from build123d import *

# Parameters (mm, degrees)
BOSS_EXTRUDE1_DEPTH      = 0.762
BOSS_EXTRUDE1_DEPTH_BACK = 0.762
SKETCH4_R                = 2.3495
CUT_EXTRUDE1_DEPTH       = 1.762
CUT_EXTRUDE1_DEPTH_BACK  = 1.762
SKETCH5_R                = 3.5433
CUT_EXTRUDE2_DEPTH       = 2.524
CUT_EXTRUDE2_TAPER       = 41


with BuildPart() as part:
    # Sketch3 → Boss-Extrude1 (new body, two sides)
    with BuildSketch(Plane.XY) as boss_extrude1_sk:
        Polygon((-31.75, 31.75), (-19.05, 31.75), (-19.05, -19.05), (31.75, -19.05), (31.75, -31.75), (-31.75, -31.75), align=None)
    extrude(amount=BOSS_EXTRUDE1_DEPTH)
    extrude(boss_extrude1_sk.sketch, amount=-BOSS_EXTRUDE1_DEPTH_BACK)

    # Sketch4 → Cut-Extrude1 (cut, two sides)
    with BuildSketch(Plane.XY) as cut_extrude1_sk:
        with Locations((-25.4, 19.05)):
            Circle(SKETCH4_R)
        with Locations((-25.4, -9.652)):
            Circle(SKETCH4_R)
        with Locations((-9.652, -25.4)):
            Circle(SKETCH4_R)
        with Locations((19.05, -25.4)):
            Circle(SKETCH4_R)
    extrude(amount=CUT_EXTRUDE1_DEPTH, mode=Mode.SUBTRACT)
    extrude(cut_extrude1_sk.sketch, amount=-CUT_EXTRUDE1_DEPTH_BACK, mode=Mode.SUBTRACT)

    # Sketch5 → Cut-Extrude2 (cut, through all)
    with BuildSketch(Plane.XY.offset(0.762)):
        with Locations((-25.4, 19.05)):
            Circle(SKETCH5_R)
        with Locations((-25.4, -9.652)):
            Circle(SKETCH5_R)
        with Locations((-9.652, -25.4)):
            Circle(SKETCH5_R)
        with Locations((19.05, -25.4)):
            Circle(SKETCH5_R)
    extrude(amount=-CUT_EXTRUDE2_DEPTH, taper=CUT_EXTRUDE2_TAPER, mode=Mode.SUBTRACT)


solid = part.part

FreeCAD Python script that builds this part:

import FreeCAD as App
import Part
import Sketcher
from FreeCAD import Vector
Q = App.Units.Quantity

doc = App.newDocument("Part")
body = doc.addObject("PartDesign::Body", "Body")

sketch1 = body.newObject("Sketcher::SketchObject", "Sketch")
sketch1.AttachmentSupport = (doc.getObject("XY_Plane"), [""])
sketch1.MapMode = "FlatFace"
sketch1.addGeometry([
    Part.LineSegment(Vector(-19, 32, 0), Vector(-32, 32, 0)),
    Part.LineSegment(Vector(-32, 32, 0), Vector(-32, -32, 0)),
    Part.LineSegment(Vector(-32, -32, 0), Vector(32, -32, 0)),
    Part.LineSegment(Vector(32, -32, 0), Vector(32, -19, 0)),
    Part.LineSegment(Vector(32, -19, 0), Vector(-19, -19, 0)),
    Part.LineSegment(Vector(-19, -19, 0), Vector(-19, 32, 0)),
], False)
sketch1.addConstraint([
    Sketcher.Constraint("Coincident", 0, 2, 1, 1),
    Sketcher.Constraint("Coincident", 1, 2, 2, 1),
    Sketcher.Constraint("Coincident", 2, 2, 3, 1),
    Sketcher.Constraint("Coincident", 3, 2, 4, 1),
    Sketcher.Constraint("Coincident", 4, 2, 5, 1),
    Sketcher.Constraint("Coincident", 5, 2, 0, 1),
    Sketcher.Constraint("Horizontal", 0),
    Sketcher.Constraint("Vertical", 1),
    Sketcher.Constraint("Horizontal", 2),
    Sketcher.Constraint("Vertical", 3),
    Sketcher.Constraint("Horizontal", 4),
    Sketcher.Constraint("Vertical", 5),
    Sketcher.Constraint("Symmetric", 0, 2, 2, 2, -1, 1),
    Sketcher.Constraint("Equal", 2, 1),
    Sketcher.Constraint("Equal", 0, 3),
    Sketcher.Constraint("DistanceX", 4, 2, 4, 1, Q("2 in")),
    Sketcher.Constraint("DistanceX", 0, 2, 0, 1, Q("0.5 in")),
])
pad1 = body.newObject("PartDesign::Pad", "Pad")
pad1.Profile = sketch1
pad1.Type = "TwoLengths"
pad1.Length = Q("0.03 in")
pad1.Length2 = Q("0.03 in")

sketch2 = body.newObject("Sketcher::SketchObject", "Sketch001")
sketch2.AttachmentSupport = (doc.getObject("XY_Plane"), [""])
sketch2.MapMode = "FlatFace"
sketch2.addGeometry([
    Part.Circle(Vector(-25.4, 19.1, 0), Vector(0, 0, 1), 2.3),
    Part.Circle(Vector(-25.4, -9.7, 0), Vector(0, 0, 1), 2.3),
    Part.Circle(Vector(-9.7, -25.4, 0), Vector(0, 0, 1), 2.3),
    Part.Circle(Vector(19.1, -25.4, 0), Vector(0, 0, 1), 2.3),
], False)
sketch2.addConstraint([
    Sketcher.Constraint("Equal", 0, 1),
    Sketcher.Constraint("Equal", 1, 2),
    Sketcher.Constraint("Equal", 2, 3),
    Sketcher.Constraint("Horizontal", 2, 3, 3, 3),
    Sketcher.Constraint("Vertical", 0, 3, 1, 3),
    Sketcher.Constraint("Diameter", 0, Q("0.185 in")),
    Sketcher.Constraint("DistanceX", 0, 3, -1, 1, Q("1 in")),
    Sketcher.Constraint("DistanceY", 2, 3, -1, 1, Q("1 in")),
    Sketcher.Constraint("DistanceY", -1, 1, 0, 3, Q("0.75 in")),
    Sketcher.Constraint("DistanceY", 1, 3, -1, 1, Q("0.38 in")),
    Sketcher.Constraint("DistanceX", 2, 3, -1, 1, Q("0.38 in")),
    Sketcher.Constraint("DistanceX", -1, 1, 3, 3, Q("0.75 in")),
])
pocket1 = body.newObject("PartDesign::Pocket", "Pocket")
pocket1.Profile = sketch2
pocket1.Type = "ThroughAll"
pocket1.Midplane = True

sketch3 = body.newObject("Sketcher::SketchObject", "Sketch002")
sketch3.AttachmentSupport = (doc.getObject("XY_Plane"), [""])
sketch3.MapMode = "FlatFace"
sketch3.AttachmentOffset = App.Placement(Vector(0, 0, 0.03 * 25.4), App.Rotation())
sketch3.addGeometry([
    Part.Circle(Vector(-25.4, 19.1, 0), Vector(0, 0, 1), 3.5),
    Part.Circle(Vector(-25.4, -9.7, 0), Vector(0, 0, 1), 3.5),
    Part.Circle(Vector(-9.7, -25.4, 0), Vector(0, 0, 1), 3.5),
    Part.Circle(Vector(19.1, -25.4, 0), Vector(0, 0, 1), 3.5),
], False)
sketch3.addConstraint([
    Sketcher.Constraint("Equal", 0, 1),
    Sketcher.Constraint("Equal", 1, 2),
    Sketcher.Constraint("Equal", 2, 3),
    Sketcher.Constraint("Horizontal", 2, 3, 3, 3),
    Sketcher.Constraint("Vertical", 0, 3, 1, 3),
    Sketcher.Constraint("Diameter", 0, Q("0.279 in")),
    Sketcher.Constraint("DistanceX", 0, 3, -1, 1, Q("1 in")),
    Sketcher.Constraint("DistanceY", 2, 3, -1, 1, Q("1 in")),
    Sketcher.Constraint("DistanceY", -1, 1, 0, 3, Q("0.75 in")),
    Sketcher.Constraint("DistanceY", 1, 3, -1, 1, Q("0.38 in")),
    Sketcher.Constraint("DistanceX", 2, 3, -1, 1, Q("0.38 in")),
    Sketcher.Constraint("DistanceX", -1, 1, 3, 3, Q("0.75 in")),
])
pocket2 = body.newObject("PartDesign::Pocket", "Pocket001")
pocket2.Profile = sketch3
pocket2.Length = 2.524
pocket2.TaperAngle = -41

doc.recompute()
